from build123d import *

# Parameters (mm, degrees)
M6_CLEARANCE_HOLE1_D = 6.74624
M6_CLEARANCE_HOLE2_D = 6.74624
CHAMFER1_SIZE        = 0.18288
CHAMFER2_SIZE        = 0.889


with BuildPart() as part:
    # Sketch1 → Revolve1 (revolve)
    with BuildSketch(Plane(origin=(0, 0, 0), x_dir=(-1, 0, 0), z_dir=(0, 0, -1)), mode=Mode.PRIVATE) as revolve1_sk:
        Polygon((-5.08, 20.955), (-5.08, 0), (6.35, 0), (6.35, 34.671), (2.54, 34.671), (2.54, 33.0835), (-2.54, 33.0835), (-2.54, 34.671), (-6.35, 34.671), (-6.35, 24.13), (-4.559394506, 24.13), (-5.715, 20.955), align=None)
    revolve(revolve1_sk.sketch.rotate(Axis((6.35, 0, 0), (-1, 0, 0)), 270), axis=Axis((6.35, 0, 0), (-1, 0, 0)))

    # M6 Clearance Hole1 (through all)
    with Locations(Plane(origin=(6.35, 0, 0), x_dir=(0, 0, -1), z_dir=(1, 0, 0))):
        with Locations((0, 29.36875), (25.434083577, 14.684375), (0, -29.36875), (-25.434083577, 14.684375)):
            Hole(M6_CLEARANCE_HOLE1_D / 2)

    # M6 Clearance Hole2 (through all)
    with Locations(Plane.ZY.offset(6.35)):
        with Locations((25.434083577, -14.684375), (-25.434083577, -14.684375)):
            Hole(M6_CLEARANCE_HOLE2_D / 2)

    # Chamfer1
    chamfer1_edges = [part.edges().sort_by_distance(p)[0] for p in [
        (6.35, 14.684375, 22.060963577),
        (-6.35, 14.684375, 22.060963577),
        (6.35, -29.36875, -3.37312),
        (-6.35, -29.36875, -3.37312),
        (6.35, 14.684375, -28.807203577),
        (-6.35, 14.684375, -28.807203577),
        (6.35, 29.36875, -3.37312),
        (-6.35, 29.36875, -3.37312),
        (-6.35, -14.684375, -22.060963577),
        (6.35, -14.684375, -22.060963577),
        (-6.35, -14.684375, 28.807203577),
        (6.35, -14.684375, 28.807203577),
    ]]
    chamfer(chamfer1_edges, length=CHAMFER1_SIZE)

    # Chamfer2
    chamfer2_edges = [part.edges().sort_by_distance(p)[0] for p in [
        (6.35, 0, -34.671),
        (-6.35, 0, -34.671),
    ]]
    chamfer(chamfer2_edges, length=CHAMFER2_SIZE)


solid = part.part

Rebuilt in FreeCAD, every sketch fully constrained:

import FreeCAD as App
import Part
import Sketcher
Q = App.Units.Quantity


def edges_at(feature, points):
    """Names of the edges that pass closest to the given points."""
    edges = feature.Shape.Edges
    near = lambda p: min(range(len(edges)), key=lambda i: edges[i].distToShape(Part.Vertex(*p))[0])
    return sorted({f"Edge{near(p) + 1}" for p in points})

doc = App.newDocument("Part")
body = doc.addObject("PartDesign::Body", "Body")

sketch1 = doc.addObject("Sketcher::SketchObject", "Sketch")
body.addObject(sketch1)
sketch1.AttachmentSupport = (doc.XY_Plane, [""])
sketch1.MapMode = "FlatFace"
sketch1.addGeometry(Part.LineSegment(App.Vector(5.1, 21, 0), App.Vector(5.1, 0, 0)), False)
sketch1.addGeometry(Part.LineSegment(App.Vector(5.1, 0, 0), App.Vector(-6.3, 0, 0)), False)
sketch1.addGeometry(Part.LineSegment(App.Vector(-6.3, 0, 0), App.Vector(-6.3, 34.7, 0)), False)
sketch1.addGeometry(Part.LineSegment(App.Vector(-6.3, 34.7, 0), App.Vector(-2.5, 34.7, 0)), False)
sketch1.addGeometry(Part.LineSegment(App.Vector(-2.5, 34.7, 0), App.Vector(-2.5, 33.1, 0)), False)
sketch1.addGeometry(Part.LineSegment(App.Vector(-2.5, 33.1, 0), App.Vector(2.5, 33.1, 0)), False)
sketch1.addGeometry(Part.LineSegment(App.Vector(2.5, 33.1, 0), App.Vector(2.5, 34.7, 0)), False)
sketch1.addGeometry(Part.LineSegment(App.Vector(2.5, 34.7, 0), App.Vector(6.3, 34.7, 0)), False)
sketch1.addGeometry(Part.LineSegment(App.Vector(6.3, 34.7, 0), App.Vector(6.3, 24.1, 0)), False)
sketch1.addGeometry(Part.LineSegment(App.Vector(6.3, 24.1, 0), App.Vector(4.6, 24.1, 0)), False)
sketch1.addGeometry(Part.LineSegment(App.Vector(4.6, 24.1, 0), App.Vector(5.7, 21, 0)), False)
sketch1.addGeometry(Part.LineSegment(App.Vector(5.7, 21, 0), App.Vector(5.1, 21, 0)), False)
sketch1.addConstraint(Sketcher.Constraint("Coincident", 0, 2, 1, 1))
sketch1.addConstraint(Sketcher.Constraint("Coincident", 1, 2, 2, 1))
sketch1.addConstraint(Sketcher.Constraint("Coincident", 2, 2, 3, 1))
sketch1.addConstraint(Sketcher.Constraint("Coincident", 3, 2, 4, 1))
sketch1.addConstraint(Sketcher.Constraint("Coincident", 4, 2, 5, 1))
sketch1.addConstraint(Sketcher.Constraint("Coincident", 5, 2, 6, 1))
sketch1.addConstraint(Sketcher.Constraint("Coincident", 6, 2, 7, 1))
sketch1.addConstraint(Sketcher.Constraint("Coincident", 7, 2, 8, 1))
sketch1.addConstraint(Sketcher.Constraint("Coincident", 8, 2, 9, 1))
sketch1.addConstraint(Sketcher.Constraint("Coincident", 9, 2, 10, 1))
sketch1.addConstraint(Sketcher.Constraint("Coincident", 10, 2, 11, 1))
sketch1.addConstraint(Sketcher.Constraint("Coincident", 11, 2, 0, 1))
sketch1.addConstraint(Sketcher.Constraint("Vertical", 0))
sketch1.addConstraint(Sketcher.Constraint("Horizontal", 1))
sketch1.addConstraint(Sketcher.Constraint("Vertical", 2))
sketch1.addConstraint(Sketcher.Constraint("Horizontal", 3))
sketch1.addConstraint(Sketcher.Constraint("Vertical", 4))
sketch1.addConstraint(Sketcher.Constraint("Horizontal", 5))
sketch1.addConstraint(Sketcher.Constraint("Vertical", 6))
sketch1.addConstraint(Sketcher.Constraint("Horizontal", 7))
sketch1.addConstraint(Sketcher.Constraint("Vertical", 8))
sketch1.addConstraint(Sketcher.Constraint("Horizontal", 9))
sketch1.addConstraint(Sketcher.Constraint("Horizontal", 11))
sketch1.addConstraint(Sketcher.Constraint("Symmetric", 3, 2, 6, 2, -2))
sketch1.addConstraint(Sketcher.Constraint("PointOnObject", 0, 2, -1))
sketch1.addConstraint(Sketcher.Constraint("Equal", 3, 7))
sketch1.addConstraint(Sketcher.Constraint("DistanceX", 5, 1, 5, 2, Q("0.2 in")))
sketch1.addConstraint(Sketcher.Constraint("Angle", 10, Q("-70 deg")))
sketch1.addConstraint(Sketcher.Constraint("DistanceX", 1, 2, 1, 1, Q("0.45 in")))
sketch1.addConstraint(Sketcher.Constraint("DistanceX", 3, 1, 3, 2, Q("0.15 in")))
sketch1.addConstraint(Sketcher.Constraint("DistanceX", 11, 2, 11, 1, Q("0.025 in")))
sketch1.addConstraint(Sketcher.Constraint("DistanceY", 0, 2, 0, 1, Q("0.825 in")))
sketch1.addConstraint(Sketcher.Constraint("DistanceY", 2, 1, 2, 2, Q("1.365 in")))
sketch1.addConstraint(Sketcher.Constraint("DistanceY", 4, 2, 4, 1, Q("0.0625 in")))
sketch1.addConstraint(Sketcher.Constraint("DistanceY", 8, 2, 8, 1, Q("0.415 in")))
revolution = doc.addObject("PartDesign::Revolution", "Revolution")
body.addObject(revolution)
revolution.Profile = sketch1
revolution.ReferenceAxis = (sketch1, ["H_Axis"])
revolution.Angle = 360

sketch2 = doc.addObject("Sketcher::SketchObject", "Sketch001")
body.addObject(sketch2)
sketch2.AttachmentSupport = (doc.YZ_Plane, [""])
sketch2.MapMode = "FlatFace"
sketch2.AttachmentOffset = App.Placement(App.Vector(0, 0, 0.25 * 25.4), App.Rotation())
sketch2.addGeometry(Part.Circle(App.Vector(29.4, 0, 0), App.Vector(0, 0, 1), 3.4), False)
sketch2.addGeometry(Part.Circle(App.Vector(14.7, -25.4, 0), App.Vector(0, 0, 1), 3.4), False)
sketch2.addGeometry(Part.Circle(App.Vector(-29.4, 0, 0), App.Vector(0, 0, 1), 3.4), False)
sketch2.addGeometry(Part.Circle(App.Vector(14.7, 25.4, 0), App.Vector(0, 0, 1), 3.4), False)
sketch2.addConstraint(Sketcher.Constraint("Equal", 0, 1))
sketch2.addConstraint(Sketcher.Constraint("Equal", 1, 2))
sketch2.addConstraint(Sketcher.Constraint("Equal", 2, 3))
sketch2.addConstraint(Sketcher.Constraint("Symmetric", 0, 3, 2, 3, -1, 1))
sketch2.addConstraint(Sketcher.Constraint("Symmetric", 1, 3, 3, 3, -1))
sketch2.addConstraint(Sketcher.Constraint("PointOnObject", 0, 3, -1))
sketch2.addConstraint(Sketcher.Constraint("Diameter", 0, Q("0.2656 in")))
sketch2.addConstraint(Sketcher.Constraint("DistanceX", -1, 1, 0, 3, Q("1.15625 in")))
sketch2.addConstraint(Sketcher.Constraint("DistanceX", -1, 1, 1, 3, Q("0.578125 in")))
sketch2.addConstraint(Sketcher.Constraint("DistanceY", 1, 3, -1, 1, 25.434084))
doc.recompute()
hole = doc.addObject("PartDesign::Hole", "Hole")
body.addObject(hole)
hole.Profile = sketch2
hole.ThreadType = "None"
hole.Diameter = Q("0.2656 in")
hole.DepthType = "ThroughAll"

sketch3 = doc.addObject("Sketcher::SketchObject", "Sketch002")
body.addObject(sketch3)
sketch3.AttachmentSupport = (doc.YZ_Plane, [""])
sketch3.MapMode = "FlatFace"
sketch3.AttachmentOffset = App.Placement(App.Vector(0, 0, -0.25 * 25.4), App.Rotation())
sketch3.addGeometry(Part.Circle(App.Vector(-14.7, 25.4, 0), App.Vector(0, 0, 1), 3.4), False)
sketch3.addGeometry(Part.Circle(App.Vector(-14.7, -25.4, 0), App.Vector(0, 0, 1), 3.4), False)
sketch3.addConstraint(Sketcher.Constraint("Equal", 0, 1))
sketch3.addConstraint(Sketcher.Constraint("Symmetric", 0, 3, 1, 3, -1))
sketch3.addConstraint(Sketcher.Constraint("Diameter", 0, Q("0.2656 in")))
sketch3.addConstraint(Sketcher.Constraint("DistanceX", 0, 3, -1, 1, Q("0.578125 in")))
sketch3.addConstraint(Sketcher.Constraint("DistanceY", -1, 1, 0, 3, 25.434084))
doc.recompute()
hole2 = doc.addObject("PartDesign::Hole", "Hole001")
body.addObject(hole2)
hole2.Profile = sketch3
hole2.ThreadType = "None"
hole2.Diameter = Q("0.2656 in")
hole2.DepthType = "ThroughAll"
hole2.Reversed = True
doc.recompute()

chamfer = doc.addObject("PartDesign::Chamfer", "Chamfer")
body.addObject(chamfer)
chamfer.Base = (hole2, edges_at(hole2, [
    (6.35, 14.684, 22.061),
    (-6.35, 14.684, 22.061),
    (6.35, -29.369, -3.373),
    (-6.35, -29.369, -3.373),
    (6.35, 14.684, -28.807),
    (-6.35, 14.684, -28.807),
    (6.35, 29.369, -3.373),
    (-6.35, 29.369, -3.373),
    (-6.35, -14.684, -22.061),
    (6.35, -14.684, -22.061),
    (-6.35, -14.684, 28.807),
    (6.35, -14.684, 28.807),
]))
chamfer.Size = Q("0.0072 in")
doc.recompute()

chamfer2 = doc.addObject("PartDesign::Chamfer", "Chamfer001")
body.addObject(chamfer2)
chamfer2.Base = (chamfer, edges_at(chamfer, [(6.35, 0, -34.671), (-6.35, 0, -34.671)]))
chamfer2.Size = Q("0.035 in")

doc.recompute()
